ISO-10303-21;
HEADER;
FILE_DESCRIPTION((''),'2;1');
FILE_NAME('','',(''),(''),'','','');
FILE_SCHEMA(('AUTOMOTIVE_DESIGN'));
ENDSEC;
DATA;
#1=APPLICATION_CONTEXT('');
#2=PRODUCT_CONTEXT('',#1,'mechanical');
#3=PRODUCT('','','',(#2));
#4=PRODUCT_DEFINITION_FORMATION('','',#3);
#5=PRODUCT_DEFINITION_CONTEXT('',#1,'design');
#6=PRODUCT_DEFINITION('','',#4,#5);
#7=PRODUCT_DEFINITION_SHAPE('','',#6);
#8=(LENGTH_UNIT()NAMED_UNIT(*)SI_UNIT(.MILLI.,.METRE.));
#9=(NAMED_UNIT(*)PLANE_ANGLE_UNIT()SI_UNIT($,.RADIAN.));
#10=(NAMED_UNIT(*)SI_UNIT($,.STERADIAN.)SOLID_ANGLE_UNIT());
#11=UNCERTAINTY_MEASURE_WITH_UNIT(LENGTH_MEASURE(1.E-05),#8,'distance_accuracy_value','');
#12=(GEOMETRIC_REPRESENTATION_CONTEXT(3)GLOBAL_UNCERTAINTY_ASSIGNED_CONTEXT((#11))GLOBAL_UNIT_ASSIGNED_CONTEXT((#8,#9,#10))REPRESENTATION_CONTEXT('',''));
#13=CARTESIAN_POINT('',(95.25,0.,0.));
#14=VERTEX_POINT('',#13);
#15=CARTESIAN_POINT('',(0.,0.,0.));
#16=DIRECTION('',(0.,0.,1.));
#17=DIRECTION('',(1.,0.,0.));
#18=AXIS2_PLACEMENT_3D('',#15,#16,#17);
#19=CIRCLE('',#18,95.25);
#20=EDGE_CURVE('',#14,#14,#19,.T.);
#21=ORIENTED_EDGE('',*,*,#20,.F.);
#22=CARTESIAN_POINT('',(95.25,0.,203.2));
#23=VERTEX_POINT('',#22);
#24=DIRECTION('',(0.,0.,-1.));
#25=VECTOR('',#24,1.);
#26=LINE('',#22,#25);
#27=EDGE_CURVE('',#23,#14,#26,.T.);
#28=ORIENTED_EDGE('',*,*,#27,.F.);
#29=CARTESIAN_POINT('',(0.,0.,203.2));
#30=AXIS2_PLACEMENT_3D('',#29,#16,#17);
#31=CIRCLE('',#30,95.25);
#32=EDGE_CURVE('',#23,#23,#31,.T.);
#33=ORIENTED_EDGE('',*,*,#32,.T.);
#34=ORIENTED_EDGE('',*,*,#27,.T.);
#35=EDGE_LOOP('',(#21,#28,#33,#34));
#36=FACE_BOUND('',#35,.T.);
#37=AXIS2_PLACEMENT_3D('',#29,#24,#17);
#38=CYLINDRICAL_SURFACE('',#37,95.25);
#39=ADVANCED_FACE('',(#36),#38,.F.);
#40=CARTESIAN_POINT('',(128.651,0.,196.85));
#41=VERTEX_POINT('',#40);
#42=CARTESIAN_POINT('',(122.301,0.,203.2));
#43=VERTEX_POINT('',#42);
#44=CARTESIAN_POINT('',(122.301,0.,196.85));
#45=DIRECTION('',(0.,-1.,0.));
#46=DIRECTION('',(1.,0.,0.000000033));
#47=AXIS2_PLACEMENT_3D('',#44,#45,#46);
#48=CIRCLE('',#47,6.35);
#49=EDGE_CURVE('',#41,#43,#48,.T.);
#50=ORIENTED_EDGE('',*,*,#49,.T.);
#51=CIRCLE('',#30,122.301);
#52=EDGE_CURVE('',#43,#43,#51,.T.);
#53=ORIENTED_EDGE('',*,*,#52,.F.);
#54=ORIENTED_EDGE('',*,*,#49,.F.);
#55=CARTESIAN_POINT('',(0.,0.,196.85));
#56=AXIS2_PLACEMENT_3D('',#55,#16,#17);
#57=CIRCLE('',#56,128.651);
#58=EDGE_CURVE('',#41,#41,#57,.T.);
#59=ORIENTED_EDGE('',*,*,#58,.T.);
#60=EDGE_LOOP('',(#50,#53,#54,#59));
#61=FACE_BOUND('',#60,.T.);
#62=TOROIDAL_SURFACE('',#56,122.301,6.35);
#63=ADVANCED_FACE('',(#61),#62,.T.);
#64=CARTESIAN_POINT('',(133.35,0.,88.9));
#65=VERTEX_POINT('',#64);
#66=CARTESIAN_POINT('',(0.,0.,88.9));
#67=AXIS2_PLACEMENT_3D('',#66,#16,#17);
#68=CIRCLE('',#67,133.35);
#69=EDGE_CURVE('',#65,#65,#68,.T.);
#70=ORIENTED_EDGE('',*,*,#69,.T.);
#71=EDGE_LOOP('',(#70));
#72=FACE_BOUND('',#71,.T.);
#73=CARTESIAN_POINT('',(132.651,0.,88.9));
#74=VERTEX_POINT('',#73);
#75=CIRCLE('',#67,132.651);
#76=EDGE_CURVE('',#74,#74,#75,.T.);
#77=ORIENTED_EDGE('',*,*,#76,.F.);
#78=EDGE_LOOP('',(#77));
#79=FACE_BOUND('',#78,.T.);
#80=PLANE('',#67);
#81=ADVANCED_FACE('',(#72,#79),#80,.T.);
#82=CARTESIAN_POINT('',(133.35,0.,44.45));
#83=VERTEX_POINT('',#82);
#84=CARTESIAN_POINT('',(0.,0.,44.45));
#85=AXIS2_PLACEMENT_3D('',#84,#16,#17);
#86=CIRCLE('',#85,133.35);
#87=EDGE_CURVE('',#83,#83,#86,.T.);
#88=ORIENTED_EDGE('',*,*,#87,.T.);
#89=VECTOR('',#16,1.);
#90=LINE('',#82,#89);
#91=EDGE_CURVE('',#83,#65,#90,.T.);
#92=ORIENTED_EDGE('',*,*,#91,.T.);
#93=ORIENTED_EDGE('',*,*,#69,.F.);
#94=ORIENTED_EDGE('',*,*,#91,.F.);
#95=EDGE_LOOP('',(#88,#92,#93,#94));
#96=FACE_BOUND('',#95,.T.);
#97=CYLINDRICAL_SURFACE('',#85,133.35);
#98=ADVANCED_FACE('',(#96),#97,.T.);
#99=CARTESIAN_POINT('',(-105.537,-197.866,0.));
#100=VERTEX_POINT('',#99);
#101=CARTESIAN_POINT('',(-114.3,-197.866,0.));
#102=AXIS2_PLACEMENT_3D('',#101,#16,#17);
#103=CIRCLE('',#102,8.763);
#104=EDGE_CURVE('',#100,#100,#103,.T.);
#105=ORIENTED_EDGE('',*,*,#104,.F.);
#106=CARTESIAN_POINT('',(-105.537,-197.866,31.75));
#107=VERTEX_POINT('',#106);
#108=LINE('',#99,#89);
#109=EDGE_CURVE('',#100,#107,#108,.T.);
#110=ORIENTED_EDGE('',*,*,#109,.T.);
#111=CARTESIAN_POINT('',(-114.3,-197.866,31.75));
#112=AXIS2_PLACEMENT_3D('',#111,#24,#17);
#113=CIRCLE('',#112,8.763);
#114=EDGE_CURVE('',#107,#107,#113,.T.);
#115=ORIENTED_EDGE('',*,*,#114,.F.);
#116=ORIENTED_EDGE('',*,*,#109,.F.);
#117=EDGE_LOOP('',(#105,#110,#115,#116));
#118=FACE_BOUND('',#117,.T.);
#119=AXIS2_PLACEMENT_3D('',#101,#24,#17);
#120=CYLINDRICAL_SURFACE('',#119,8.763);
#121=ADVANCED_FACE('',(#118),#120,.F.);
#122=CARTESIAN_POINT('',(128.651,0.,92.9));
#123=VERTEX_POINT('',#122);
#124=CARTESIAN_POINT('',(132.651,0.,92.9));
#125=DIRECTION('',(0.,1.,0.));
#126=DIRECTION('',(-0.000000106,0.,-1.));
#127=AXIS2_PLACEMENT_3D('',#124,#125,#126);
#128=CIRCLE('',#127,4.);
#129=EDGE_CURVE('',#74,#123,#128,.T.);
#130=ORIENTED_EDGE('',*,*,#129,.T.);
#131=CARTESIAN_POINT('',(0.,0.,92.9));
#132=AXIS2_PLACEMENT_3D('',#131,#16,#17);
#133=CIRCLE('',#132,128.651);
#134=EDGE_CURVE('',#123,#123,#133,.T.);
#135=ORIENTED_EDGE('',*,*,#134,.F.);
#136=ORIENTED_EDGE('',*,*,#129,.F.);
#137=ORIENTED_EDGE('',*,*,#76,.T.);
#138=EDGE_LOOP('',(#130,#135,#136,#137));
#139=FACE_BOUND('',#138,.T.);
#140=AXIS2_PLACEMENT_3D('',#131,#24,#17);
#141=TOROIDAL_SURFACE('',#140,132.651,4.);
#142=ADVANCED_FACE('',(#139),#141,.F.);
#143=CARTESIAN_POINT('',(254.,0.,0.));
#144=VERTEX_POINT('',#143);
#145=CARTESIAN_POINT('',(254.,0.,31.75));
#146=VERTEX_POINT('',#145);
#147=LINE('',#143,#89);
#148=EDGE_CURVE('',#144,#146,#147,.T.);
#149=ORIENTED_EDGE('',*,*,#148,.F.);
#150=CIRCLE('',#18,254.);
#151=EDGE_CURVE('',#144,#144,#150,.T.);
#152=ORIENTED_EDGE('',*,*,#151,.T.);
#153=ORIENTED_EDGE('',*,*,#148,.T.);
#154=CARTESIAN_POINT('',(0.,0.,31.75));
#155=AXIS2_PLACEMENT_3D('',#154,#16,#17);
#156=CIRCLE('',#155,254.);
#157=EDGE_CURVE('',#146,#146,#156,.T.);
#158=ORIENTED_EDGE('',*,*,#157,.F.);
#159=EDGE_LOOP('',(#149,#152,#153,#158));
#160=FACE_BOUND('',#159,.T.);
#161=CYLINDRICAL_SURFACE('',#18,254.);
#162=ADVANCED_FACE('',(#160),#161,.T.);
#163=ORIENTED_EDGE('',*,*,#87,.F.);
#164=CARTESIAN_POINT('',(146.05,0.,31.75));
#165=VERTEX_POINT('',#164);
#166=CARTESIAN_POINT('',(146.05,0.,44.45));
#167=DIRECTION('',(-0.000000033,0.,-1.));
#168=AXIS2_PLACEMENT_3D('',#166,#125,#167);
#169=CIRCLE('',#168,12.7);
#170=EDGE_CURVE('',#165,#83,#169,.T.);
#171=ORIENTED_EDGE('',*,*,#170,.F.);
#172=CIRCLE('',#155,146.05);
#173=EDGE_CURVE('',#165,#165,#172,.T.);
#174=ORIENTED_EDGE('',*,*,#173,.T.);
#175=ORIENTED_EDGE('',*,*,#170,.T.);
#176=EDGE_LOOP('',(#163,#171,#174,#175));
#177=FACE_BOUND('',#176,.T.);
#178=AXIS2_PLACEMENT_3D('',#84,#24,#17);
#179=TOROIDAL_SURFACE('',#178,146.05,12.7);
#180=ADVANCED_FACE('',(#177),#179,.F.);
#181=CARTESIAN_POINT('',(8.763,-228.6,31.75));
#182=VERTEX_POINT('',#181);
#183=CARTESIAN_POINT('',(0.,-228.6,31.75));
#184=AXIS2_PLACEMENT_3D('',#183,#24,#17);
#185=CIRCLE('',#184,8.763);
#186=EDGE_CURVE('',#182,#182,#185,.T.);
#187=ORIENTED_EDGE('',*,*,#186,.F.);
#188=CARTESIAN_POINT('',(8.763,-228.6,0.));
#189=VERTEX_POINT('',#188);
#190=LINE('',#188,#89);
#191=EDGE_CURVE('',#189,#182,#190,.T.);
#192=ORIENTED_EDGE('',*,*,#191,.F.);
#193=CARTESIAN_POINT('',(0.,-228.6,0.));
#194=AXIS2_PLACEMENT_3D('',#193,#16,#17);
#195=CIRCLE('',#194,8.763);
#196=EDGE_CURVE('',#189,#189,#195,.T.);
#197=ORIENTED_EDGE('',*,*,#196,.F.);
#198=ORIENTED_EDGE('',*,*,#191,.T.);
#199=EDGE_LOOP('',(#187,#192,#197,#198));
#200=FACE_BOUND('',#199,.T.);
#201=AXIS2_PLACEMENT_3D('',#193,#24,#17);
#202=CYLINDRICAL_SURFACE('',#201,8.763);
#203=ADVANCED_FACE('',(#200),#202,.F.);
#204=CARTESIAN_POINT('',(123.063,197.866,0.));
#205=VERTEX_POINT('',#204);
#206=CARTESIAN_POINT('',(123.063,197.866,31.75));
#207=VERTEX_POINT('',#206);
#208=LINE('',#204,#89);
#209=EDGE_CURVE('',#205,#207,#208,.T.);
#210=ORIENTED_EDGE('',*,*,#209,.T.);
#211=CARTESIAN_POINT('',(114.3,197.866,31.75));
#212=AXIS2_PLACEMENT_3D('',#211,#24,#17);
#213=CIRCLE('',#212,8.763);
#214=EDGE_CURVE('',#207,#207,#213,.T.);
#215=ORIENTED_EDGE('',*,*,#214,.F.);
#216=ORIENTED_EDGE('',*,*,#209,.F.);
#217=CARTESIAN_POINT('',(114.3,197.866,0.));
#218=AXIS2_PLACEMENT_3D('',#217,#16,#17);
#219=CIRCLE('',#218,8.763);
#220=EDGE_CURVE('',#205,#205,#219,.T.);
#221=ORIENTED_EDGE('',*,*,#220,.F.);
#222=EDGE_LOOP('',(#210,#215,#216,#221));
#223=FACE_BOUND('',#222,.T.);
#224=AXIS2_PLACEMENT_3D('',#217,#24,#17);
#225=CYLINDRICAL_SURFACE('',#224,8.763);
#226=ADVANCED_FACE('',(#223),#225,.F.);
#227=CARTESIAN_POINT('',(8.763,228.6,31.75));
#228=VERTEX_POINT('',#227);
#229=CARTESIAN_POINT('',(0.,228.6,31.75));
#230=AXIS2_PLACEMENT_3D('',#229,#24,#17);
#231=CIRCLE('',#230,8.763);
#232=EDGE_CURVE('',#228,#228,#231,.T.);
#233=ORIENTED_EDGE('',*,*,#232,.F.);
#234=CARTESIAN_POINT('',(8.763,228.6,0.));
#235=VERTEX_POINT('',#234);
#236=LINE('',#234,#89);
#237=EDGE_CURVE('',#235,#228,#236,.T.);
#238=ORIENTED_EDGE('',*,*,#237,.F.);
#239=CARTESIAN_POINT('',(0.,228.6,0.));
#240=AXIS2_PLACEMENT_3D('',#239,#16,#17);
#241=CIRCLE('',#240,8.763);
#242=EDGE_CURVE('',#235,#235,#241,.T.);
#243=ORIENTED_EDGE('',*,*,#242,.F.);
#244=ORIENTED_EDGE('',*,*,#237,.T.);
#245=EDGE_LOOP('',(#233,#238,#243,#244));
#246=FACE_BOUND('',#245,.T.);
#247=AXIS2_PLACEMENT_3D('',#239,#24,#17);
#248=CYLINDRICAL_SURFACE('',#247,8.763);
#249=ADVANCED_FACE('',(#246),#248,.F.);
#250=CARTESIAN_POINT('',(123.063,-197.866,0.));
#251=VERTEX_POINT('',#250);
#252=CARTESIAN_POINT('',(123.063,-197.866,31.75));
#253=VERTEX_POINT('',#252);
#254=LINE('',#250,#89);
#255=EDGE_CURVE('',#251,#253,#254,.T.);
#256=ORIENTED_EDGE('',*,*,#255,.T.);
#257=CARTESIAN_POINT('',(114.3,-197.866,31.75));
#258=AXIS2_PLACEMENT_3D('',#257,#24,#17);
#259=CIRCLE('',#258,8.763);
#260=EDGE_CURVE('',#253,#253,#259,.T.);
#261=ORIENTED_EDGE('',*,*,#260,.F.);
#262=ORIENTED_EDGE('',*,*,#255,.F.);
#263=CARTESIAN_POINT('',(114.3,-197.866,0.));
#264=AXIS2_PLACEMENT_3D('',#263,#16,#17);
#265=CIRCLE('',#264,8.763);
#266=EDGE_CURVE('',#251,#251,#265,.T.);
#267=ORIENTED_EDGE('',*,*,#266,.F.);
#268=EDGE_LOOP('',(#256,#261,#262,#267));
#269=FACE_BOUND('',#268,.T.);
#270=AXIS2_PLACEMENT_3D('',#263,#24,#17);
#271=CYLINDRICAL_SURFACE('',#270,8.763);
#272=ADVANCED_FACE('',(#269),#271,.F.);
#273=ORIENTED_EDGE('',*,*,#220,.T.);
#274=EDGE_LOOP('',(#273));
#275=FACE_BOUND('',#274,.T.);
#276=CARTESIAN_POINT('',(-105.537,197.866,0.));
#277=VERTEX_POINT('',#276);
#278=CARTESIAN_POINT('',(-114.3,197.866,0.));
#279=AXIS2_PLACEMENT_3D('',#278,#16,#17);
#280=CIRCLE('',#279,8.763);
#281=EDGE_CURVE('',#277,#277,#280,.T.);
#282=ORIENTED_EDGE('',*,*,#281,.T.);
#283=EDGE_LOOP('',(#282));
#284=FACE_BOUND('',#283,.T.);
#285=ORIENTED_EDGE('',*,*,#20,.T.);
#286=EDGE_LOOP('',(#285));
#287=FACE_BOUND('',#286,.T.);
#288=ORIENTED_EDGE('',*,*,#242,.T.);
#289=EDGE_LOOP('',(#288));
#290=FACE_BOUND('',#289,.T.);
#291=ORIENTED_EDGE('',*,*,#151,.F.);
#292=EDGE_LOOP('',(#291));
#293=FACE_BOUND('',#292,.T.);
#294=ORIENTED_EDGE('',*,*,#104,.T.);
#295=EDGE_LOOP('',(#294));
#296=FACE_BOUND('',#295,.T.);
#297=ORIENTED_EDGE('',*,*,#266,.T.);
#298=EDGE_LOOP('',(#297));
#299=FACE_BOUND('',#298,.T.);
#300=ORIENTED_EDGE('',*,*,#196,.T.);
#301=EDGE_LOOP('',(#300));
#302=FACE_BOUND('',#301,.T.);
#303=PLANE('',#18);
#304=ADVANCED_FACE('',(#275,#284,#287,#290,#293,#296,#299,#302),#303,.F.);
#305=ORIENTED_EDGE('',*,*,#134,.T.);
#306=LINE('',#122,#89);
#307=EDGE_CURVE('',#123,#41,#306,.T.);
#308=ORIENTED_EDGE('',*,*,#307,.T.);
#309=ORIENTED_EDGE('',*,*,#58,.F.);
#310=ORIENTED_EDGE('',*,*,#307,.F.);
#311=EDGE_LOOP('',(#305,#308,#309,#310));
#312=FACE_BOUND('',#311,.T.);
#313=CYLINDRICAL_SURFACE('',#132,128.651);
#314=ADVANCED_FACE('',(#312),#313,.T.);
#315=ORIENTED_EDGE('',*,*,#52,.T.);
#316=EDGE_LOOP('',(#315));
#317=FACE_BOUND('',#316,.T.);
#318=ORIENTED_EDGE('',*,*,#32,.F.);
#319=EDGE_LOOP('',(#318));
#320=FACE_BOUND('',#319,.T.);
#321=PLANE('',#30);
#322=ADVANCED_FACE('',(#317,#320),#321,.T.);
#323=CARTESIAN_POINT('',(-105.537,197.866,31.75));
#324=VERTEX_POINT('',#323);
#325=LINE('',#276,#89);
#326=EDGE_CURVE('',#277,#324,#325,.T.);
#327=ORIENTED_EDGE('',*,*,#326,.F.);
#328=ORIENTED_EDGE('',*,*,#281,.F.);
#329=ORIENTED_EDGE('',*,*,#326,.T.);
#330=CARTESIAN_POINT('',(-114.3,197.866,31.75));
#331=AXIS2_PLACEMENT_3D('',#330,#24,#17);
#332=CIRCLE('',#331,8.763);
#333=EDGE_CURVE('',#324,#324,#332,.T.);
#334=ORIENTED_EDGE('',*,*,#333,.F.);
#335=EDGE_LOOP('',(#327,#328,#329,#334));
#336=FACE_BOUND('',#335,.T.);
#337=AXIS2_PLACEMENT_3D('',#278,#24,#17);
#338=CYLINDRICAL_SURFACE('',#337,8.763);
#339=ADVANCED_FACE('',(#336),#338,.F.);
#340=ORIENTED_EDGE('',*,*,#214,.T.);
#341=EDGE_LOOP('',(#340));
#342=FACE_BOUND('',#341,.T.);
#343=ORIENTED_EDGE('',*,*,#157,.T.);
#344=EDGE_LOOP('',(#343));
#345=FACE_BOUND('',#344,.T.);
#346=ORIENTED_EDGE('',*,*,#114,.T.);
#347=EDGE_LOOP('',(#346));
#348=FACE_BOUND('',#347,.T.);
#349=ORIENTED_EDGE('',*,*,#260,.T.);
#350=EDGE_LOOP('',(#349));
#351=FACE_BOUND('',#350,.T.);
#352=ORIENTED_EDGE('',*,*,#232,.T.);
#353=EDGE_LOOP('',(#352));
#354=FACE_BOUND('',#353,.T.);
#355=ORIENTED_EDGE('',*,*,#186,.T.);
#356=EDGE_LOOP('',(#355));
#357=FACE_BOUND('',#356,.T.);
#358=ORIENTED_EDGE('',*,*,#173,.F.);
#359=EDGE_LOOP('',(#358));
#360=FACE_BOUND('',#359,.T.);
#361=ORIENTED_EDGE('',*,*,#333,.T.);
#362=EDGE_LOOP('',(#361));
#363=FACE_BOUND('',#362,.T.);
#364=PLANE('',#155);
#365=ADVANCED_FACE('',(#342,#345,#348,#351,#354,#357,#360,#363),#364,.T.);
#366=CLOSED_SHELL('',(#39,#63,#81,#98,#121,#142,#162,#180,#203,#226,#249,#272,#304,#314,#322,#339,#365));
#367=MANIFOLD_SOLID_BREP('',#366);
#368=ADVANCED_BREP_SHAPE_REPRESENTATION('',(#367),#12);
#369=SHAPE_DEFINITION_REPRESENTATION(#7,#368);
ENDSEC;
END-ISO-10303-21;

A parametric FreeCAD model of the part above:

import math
import FreeCAD as App
import Part
import Sketcher
from FreeCAD import Vector
Q = App.Units.Quantity

doc = App.newDocument("Part")
body = doc.addObject("PartDesign::Body", "Body")

# Sketch on XZ plane
sketch1 = body.newObject("Sketcher::SketchObject", "Sketch")
sketch1.AttachmentSupport = (doc.getObject("XZ_Plane"), [""])
sketch1.MapMode = "FlatFace"
sketch1.addGeometry([
    Part.LineSegment(Vector(95.2, 203.2, 0), Vector(95.2, 0, 0)),  # 0
    Part.LineSegment(Vector(95.2, 0, 0), Vector(254, 0, 0)),  # 1
    Part.LineSegment(Vector(254, 0, 0), Vector(254, 31.8, 0)),  # 2
    Part.LineSegment(Vector(254, 31.8, 0), Vector(146.1, 31.8, 0)),  # 3
    Part.ArcOfCircle(Part.Circle(Vector(146.1, 44.5, 0), Vector(0, 0, 1), 12.7), math.radians(-180), math.radians(-90)),  # 4
    Part.LineSegment(Vector(133.3, 44.5, 0), Vector(133.3, 88.9, 0)),  # 5
    Part.LineSegment(Vector(133.3, 88.9, 0), Vector(132.7, 88.9, 0)),  # 6
    Part.ArcOfCircle(Part.Circle(Vector(132.7, 92.9, 0), Vector(0, 0, 1), 4), math.radians(-180), math.radians(-90)),  # 7
    Part.LineSegment(Vector(128.7, 92.9, 0), Vector(128.7, 196.8, 0)),  # 8
    Part.ArcOfCircle(Part.Circle(Vector(122.3, 196.8, 0), Vector(0, 0, 1), 6.4), math.radians(0), math.radians(90)),  # 9
    Part.LineSegment(Vector(122.3, 203.2, 0), Vector(95.2, 203.2, 0)),  # 10
], False)
sketch1.addConstraint([
    Sketcher.Constraint("Coincident", 0, 2, 1, 1),
    Sketcher.Constraint("Coincident", 1, 2, 2, 1),
    Sketcher.Constraint("Coincident", 2, 2, 3, 1),
    Sketcher.Constraint("Tangent", 3, 2, 4, 2),
    Sketcher.Constraint("Tangent", 4, 1, 5, 1),
    Sketcher.Constraint("Coincident", 5, 2, 6, 1),
    Sketcher.Constraint("Tangent", 6, 2, 7, 2),
    Sketcher.Constraint("Tangent", 7, 1, 8, 1),
    Sketcher.Constraint("Tangent", 8, 2, 9, 1),
    Sketcher.Constraint("Tangent", 9, 2, 10, 1),
    Sketcher.Constraint("Coincident", 10, 2, 0, 1),
    Sketcher.Constraint("Vertical", 0),
    Sketcher.Constraint("Horizontal", 1),
    Sketcher.Constraint("Vertical", 2),
    Sketcher.Constraint("Horizontal", 3),
    Sketcher.Constraint("Vertical", 5),
    Sketcher.Constraint("Horizontal", 6),
    Sketcher.Constraint("Vertical", 8),
    Sketcher.Constraint("Horizontal", 10),
    Sketcher.Constraint("PointOnObject", 0, 2, -1),
    Sketcher.Constraint("Radius", 4, Q("0.5 in")),
    Sketcher.Constraint("DistanceY", 0, 2, 0, 1, Q("8 in")),
    Sketcher.Constraint("Radius", 9, Q("0.25 in")),
    Sketcher.Constraint("DistanceX", -1, 1, 1, 2, Q("10 in")),
    Sketcher.Constraint("DistanceY", 4, 3, 9, 3, Q("6 in")),
    Sketcher.Constraint("DistanceX", 0, 2, 4, 3, Q("2 in")),
    Sketcher.Constraint("DistanceX", 1, 1, 1, 2, Q("6.25 in")),
    Sketcher.Constraint("DistanceY", 5, 1, 5, 2, Q("1.75 in")),
    Sketcher.Constraint("DistanceX", 10, 2, 10, 1, Q("1.065 in")),
    Sketcher.Constraint("Radius", 7, 4.0),
])
revolution = body.newObject("PartDesign::Revolution", "Revolution")
revolution.Profile = sketch1
revolution.ReferenceAxis = (sketch1, ["V_Axis"])
revolution.Angle = 360

# Sketch on XY plane
sketch2 = body.newObject("Sketcher::SketchObject", "Sketch001")
sketch2.AttachmentSupport = (doc.getObject("XY_Plane"), [""])
sketch2.MapMode = "FlatFace"
sketch2.addGeometry([
    Part.Circle(Vector(0, 229, 0), Vector(0, 0, 1), 9),  # 0
    Part.Circle(Vector(0, -229, 0), Vector(0, 0, 1), 9),  # 1
    Part.Circle(Vector(114, -198, 0), Vector(0, 0, 1), 9),  # 2
    Part.Circle(Vector(-114, -198, 0), Vector(0, 0, 1), 9),  # 3
    Part.Circle(Vector(-114, 198, 0), Vector(0, 0, 1), 9),  # 4
    Part.Circle(Vector(114, 198, 0), Vector(0, 0, 1), 9),  # 5
], False)
sketch2.addConstraint([
    Sketcher.Constraint("Equal", 0, 1),
    Sketcher.Constraint("Equal", 1, 2),
    Sketcher.Constraint("Equal", 2, 3),
    Sketcher.Constraint("Equal", 3, 4),
    Sketcher.Constraint("Equal", 4, 5),
    Sketcher.Constraint("Symmetric", 0, 3, 1, 3, -1, 1),
    Sketcher.Constraint("Symmetric", 2, 3, 4, 3, -1, 1),
    Sketcher.Constraint("Symmetric", 3, 3, 5, 3, -1, 1),
    Sketcher.Constraint("Symmetric", 2, 3, 3, 3, -2),
    Sketcher.Constraint("PointOnObject", 0, 3, -2),
    Sketcher.Constraint("Diameter", 0, Q("0.69 in")),
    Sketcher.Constraint("DistanceY", -1, 1, 0, 3, Q("9 in")),
    Sketcher.Constraint("DistanceX", 3, 3, 2, 3, Q("9 in")),
    Sketcher.Constraint("DistanceY", 2, 3, -1, 1, Q("7.79 in")),
])
pocket1 = body.newObject("PartDesign::Pocket", "Pocket")
pocket1.Profile = sketch2
pocket1.Type = "ThroughAll"
pocket1.Reversed = True

doc.recompute()
